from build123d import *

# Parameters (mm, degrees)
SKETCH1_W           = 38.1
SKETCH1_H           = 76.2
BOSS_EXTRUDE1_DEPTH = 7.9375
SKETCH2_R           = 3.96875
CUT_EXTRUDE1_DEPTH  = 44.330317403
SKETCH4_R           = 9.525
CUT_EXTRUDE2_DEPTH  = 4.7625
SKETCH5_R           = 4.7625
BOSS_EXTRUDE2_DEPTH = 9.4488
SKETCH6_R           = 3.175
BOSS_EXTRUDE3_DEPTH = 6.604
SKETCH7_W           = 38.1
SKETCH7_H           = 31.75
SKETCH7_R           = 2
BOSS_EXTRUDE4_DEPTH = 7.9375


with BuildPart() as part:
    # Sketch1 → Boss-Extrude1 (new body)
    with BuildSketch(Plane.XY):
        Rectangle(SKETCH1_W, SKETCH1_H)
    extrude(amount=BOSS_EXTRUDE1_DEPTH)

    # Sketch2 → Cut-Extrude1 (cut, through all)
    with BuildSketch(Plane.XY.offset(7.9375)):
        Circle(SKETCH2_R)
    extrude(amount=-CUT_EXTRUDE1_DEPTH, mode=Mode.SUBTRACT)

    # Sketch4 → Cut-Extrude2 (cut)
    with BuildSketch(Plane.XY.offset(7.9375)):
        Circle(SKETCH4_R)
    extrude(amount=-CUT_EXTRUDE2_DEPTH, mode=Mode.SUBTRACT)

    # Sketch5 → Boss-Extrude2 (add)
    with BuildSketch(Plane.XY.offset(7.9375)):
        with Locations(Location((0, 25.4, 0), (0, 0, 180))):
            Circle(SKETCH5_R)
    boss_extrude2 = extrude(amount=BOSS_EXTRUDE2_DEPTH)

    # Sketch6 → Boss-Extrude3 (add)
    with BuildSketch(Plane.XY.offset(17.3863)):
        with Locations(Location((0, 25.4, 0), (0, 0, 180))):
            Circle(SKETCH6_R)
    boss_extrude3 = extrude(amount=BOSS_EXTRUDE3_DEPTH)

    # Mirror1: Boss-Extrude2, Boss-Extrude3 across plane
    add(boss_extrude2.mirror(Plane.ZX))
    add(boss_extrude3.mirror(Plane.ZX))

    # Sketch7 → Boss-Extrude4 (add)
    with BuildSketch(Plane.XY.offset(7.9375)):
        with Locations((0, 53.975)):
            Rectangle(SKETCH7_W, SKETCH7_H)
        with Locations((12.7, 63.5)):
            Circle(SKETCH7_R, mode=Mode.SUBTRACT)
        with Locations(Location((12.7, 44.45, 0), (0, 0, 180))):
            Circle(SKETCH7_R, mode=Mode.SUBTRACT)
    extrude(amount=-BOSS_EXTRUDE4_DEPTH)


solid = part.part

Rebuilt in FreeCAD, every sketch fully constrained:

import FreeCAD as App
import Part
import Sketcher
from FreeCAD import Vector
Q = App.Units.Quantity


def add_polygon(sketch, points):
    """Adds a closed chain of lines whose ends are joined by coincident constraints."""
    first, n = sketch.GeometryCount, len(points)
    for a, b in zip(points, points[1:] + points[:1]):
        sketch.addGeometry(Part.LineSegment(App.Vector(*a, 0), App.Vector(*b, 0)), False)
    for i in range(n):
        sketch.addConstraint(Sketcher.Constraint("Coincident", first + i, 2, first + (i + 1) % n, 1))

doc = App.newDocument("Part")
body = doc.addObject("PartDesign::Body", "Body")

# Sketch on XY plane
sketch1 = body.newObject("Sketcher::SketchObject", "Sketch")
sketch1.AttachmentSupport = (doc.getObject("XY_Plane"), [""])
sketch1.MapMode = "FlatFace"
add_polygon(sketch1, [(-19.05, 38.1), (-19.05, -38.1), (19.05, -38.1), (19.05, 38.1)])  # lines 0-3
sketch1.addConstraint(Sketcher.Constraint("Vertical", 0))
sketch1.addConstraint(Sketcher.Constraint("Horizontal", 1))
sketch1.addConstraint(Sketcher.Constraint("Vertical", 2))
sketch1.addConstraint(Sketcher.Constraint("Horizontal", 3))
sketch1.addConstraint(Sketcher.Constraint("Symmetric", 0, 2, 2, 2, -1, 1))
sketch1.addConstraint(Sketcher.Constraint("DistanceY", 0, 2, 0, 1, Q("3 in")))
sketch1.addConstraint(Sketcher.Constraint("DistanceX", 1, 1, 1, 2, Q("1.5 in")))
pad1 = body.newObject("PartDesign::Pad", "Pad")
pad1.Profile = sketch1
pad1.Length = Q("0.3125 in")

# Sketch on XY plane
sketch2 = body.newObject("Sketcher::SketchObject", "Sketch001")
sketch2.AttachmentSupport = (doc.getObject("XY_Plane"), [""])
sketch2.MapMode = "FlatFace"
sketch2.AttachmentOffset = App.Placement(Vector(0, 0, 0.3125 * 25.4), App.Rotation())
sketch2.addGeometry(Part.Circle(Vector(0, 0, 0), Vector(0, 0, 1), 3.96875), False)
sketch2.addConstraint(Sketcher.Constraint("Coincident", 0, 3, -1, 1))
sketch2.addConstraint(Sketcher.Constraint("Diameter", 0, Q("0.3125 in")))
pocket1 = body.newObject("PartDesign::Pocket", "Pocket")
pocket1.Profile = sketch2
pocket1.Type = "ThroughAll"

# Sketch on XY plane
sketch3 = body.newObject("Sketcher::SketchObject", "Sketch002")
sketch3.AttachmentSupport = (doc.getObject("XY_Plane"), [""])
sketch3.MapMode = "FlatFace"
sketch3.AttachmentOffset = App.Placement(Vector(0, 0, 0.3125 * 25.4), App.Rotation())
sketch3.addGeometry(Part.Circle(Vector(0, 0, 0), Vector(0, 0, 1), 9.525), False)
sketch3.addConstraint(Sketcher.Constraint("Coincident", 0, 3, -1, 1))
sketch3.addConstraint(Sketcher.Constraint("Diameter", 0, Q("0.75 in")))
pocket2 = body.newObject("PartDesign::Pocket", "Pocket001")
pocket2.Profile = sketch3
pocket2.Length = Q("0.1875 in")

# Sketch on XY plane
sketch4 = body.newObject("Sketcher::SketchObject", "Sketch003")
sketch4.AttachmentSupport = (doc.getObject("XY_Plane"), [""])
sketch4.MapMode = "FlatFace"
sketch4.AttachmentOffset = App.Placement(Vector(0, 0, 0.3125 * 25.4), App.Rotation())
sketch4.addGeometry(Part.Circle(Vector(0, 25.4, 0), Vector(0, 0, 1), 4.7625), False)
sketch4.addConstraint(Sketcher.Constraint("PointOnObject", 0, 3, -2))
sketch4.addConstraint(Sketcher.Constraint("Diameter", 0, Q("0.375 in")))
sketch4.addConstraint(Sketcher.Constraint("DistanceY", -1, 1, 0, 3, Q("1 in")))
pad2 = body.newObject("PartDesign::Pad", "Pad001")
pad2.Profile = sketch4
pad2.Length = Q("0.372 in")

# Sketch on XY plane
sketch5 = body.newObject("Sketcher::SketchObject", "Sketch004")
sketch5.AttachmentSupport = (doc.getObject("XY_Plane"), [""])
sketch5.MapMode = "FlatFace"
sketch5.AttachmentOffset = App.Placement(Vector(0, 0, 0.6845 * 25.4), App.Rotation())
sketch5.addGeometry(Part.Circle(Vector(0, 25.4, 0), Vector(0, 0, 1), 3.175), False)
sketch5.addConstraint(Sketcher.Constraint("PointOnObject", 0, 3, -2))
sketch5.addConstraint(Sketcher.Constraint("Diameter", 0, Q("0.25 in")))
sketch5.addConstraint(Sketcher.Constraint("DistanceY", -1, 1, 0, 3, Q("1 in")))
pad3 = body.newObject("PartDesign::Pad", "Pad002")
pad3.Profile = sketch5
pad3.Length = Q("0.26 in")
doc.recompute()

mirrored = body.newObject("PartDesign::Mirrored", "Mirrored")
mirrored.Originals = [pad2, pad3]
mirrored.MirrorPlane = (doc.getObject("XZ_Plane"), [""])
body.Tip = mirrored

# Sketch on XY plane
sketch6 = body.newObject("Sketcher::SketchObject", "Sketch005")
sketch6.AttachmentSupport = (doc.getObject("XY_Plane"), [""])
sketch6.MapMode = "FlatFace"
sketch6.AttachmentOffset = App.Placement(Vector(0, 0, 0.3125 * 25.4), App.Rotation())
add_polygon(sketch6, [(-19.05, 69.85), (-19.05, 38.1), (19.05, 38.1), (19.05, 69.85)])  # lines 0-3
sketch6.addGeometry(Part.Circle(Vector(12.7, 44.45, 0), Vector(0, 0, 1), 2), False)  # 4
sketch6.addGeometry(Part.Circle(Vector(12.7, 63.5, 0), Vector(0, 0, 1), 2), False)  # 5
sketch6.addConstraint(Sketcher.Constraint("Vertical", 0))
sketch6.addConstraint(Sketcher.Constraint("Horizontal", 1))
sketch6.addConstraint(Sketcher.Constraint("Vertical", 2))
sketch6.addConstraint(Sketcher.Constraint("Horizontal", 3))
sketch6.addConstraint(Sketcher.Constraint("Equal", 4, 5))
sketch6.addConstraint(Sketcher.Constraint("Vertical", 4, 3, 5, 3))
sketch6.addConstraint(Sketcher.Constraint("DistanceX", 1, 1, 1, 2, Q("1.5 in")))
sketch6.addConstraint(Sketcher.Constraint("DistanceY", 0, 2, 5, 3, Q("1 in")))
sketch6.addConstraint(Sketcher.Constraint("DistanceY", 4, 3, 2, 2, Q("1 in")))
sketch6.addConstraint(Sketcher.Constraint("DistanceY", 0, 2, 0, 1, Q("1.25 in")))
sketch6.addConstraint(Sketcher.Constraint("DistanceX", -1, 1, 4, 3, Q("0.5 in")))
sketch6.addConstraint(Sketcher.Constraint("DistanceY", -1, 1, 5, 3, Q("2.5 in")))
sketch6.addConstraint(Sketcher.Constraint("Diameter", 4, Q("4 mm")))
sketch6.addConstraint(Sketcher.Constraint("DistanceX", 0, 2, -1, 1, Q("0.75 in")))
pad4 = body.newObject("PartDesign::Pad", "Pad003")
pad4.Profile = sketch6
pad4.Length = Q("0.3125 in")
pad4.Reversed = True

doc.recompute()
